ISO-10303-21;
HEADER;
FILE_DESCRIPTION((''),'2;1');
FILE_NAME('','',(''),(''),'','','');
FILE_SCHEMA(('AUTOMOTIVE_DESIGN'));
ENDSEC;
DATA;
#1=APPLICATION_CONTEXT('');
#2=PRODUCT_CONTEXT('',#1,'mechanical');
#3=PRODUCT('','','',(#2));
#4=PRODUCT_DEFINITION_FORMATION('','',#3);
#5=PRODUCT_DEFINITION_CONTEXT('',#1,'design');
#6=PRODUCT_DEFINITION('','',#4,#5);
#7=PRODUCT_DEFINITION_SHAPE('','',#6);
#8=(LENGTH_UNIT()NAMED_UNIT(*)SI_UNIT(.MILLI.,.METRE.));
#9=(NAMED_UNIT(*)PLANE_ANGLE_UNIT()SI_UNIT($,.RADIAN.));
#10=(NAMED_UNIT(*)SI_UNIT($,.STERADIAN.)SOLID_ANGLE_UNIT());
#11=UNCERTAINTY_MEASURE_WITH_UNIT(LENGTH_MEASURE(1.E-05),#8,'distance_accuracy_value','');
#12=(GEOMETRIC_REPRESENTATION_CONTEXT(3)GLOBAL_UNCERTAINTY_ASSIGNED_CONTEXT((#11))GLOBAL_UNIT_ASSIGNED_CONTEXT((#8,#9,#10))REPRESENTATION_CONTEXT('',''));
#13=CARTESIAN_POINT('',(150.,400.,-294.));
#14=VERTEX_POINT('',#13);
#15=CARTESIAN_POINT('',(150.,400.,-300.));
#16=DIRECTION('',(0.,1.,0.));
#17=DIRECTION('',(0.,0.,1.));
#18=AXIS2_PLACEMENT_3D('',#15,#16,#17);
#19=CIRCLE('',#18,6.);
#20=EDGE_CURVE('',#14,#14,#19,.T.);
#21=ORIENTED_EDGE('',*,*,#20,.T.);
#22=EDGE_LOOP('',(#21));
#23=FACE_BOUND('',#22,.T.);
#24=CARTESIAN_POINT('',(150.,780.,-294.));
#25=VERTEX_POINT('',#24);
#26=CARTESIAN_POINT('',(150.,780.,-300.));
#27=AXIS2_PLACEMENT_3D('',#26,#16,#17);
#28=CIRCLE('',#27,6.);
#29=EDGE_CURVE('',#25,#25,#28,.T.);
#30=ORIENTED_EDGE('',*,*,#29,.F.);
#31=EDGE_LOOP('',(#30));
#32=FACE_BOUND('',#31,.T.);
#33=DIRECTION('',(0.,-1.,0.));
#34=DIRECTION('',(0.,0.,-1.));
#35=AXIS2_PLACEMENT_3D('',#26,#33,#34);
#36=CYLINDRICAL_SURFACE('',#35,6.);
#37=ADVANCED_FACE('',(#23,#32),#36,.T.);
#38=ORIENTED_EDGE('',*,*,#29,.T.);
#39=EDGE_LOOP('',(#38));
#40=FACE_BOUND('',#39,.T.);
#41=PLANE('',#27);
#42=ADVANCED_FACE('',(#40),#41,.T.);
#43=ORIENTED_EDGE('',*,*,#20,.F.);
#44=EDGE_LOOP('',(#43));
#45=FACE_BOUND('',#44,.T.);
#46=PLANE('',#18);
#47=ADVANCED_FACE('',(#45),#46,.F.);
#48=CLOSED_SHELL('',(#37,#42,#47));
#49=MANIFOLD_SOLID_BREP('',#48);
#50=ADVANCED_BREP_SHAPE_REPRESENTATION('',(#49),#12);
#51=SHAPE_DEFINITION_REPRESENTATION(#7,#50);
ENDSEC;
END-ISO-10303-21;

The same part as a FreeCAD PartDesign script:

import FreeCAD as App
import Part
import Sketcher
from FreeCAD import Vector

doc = App.newDocument("Part")
body = doc.addObject("PartDesign::Body", "Body")

sketch1 = doc.addObject("Sketcher::SketchObject", "Sketch")
body.addObject(sketch1)
sketch1.AttachmentSupport = (doc.XZ_Plane, [""])
sketch1.MapMode = "FlatFace"
sketch1.AttachmentOffset = App.Placement(Vector(0, 0, -400), App.Rotation())
sketch1.addGeometry(Part.Circle(Vector(150, -300, 0), Vector(0, 0, 1), 6), False)
sketch1.addConstraint(Sketcher.Constraint("Diameter", 0, 12.0))
sketch1.addConstraint(Sketcher.Constraint("DistanceX", -1, 1, 0, 3, 150.0))
sketch1.addConstraint(Sketcher.Constraint("DistanceY", 0, 3, -1, 1, 300.0))
pad1 = doc.addObject("PartDesign::Pad", "Pad")
body.addObject(pad1)
pad1.Profile = sketch1
pad1.Length = 380
pad1.Reversed = True

doc.recompute()
